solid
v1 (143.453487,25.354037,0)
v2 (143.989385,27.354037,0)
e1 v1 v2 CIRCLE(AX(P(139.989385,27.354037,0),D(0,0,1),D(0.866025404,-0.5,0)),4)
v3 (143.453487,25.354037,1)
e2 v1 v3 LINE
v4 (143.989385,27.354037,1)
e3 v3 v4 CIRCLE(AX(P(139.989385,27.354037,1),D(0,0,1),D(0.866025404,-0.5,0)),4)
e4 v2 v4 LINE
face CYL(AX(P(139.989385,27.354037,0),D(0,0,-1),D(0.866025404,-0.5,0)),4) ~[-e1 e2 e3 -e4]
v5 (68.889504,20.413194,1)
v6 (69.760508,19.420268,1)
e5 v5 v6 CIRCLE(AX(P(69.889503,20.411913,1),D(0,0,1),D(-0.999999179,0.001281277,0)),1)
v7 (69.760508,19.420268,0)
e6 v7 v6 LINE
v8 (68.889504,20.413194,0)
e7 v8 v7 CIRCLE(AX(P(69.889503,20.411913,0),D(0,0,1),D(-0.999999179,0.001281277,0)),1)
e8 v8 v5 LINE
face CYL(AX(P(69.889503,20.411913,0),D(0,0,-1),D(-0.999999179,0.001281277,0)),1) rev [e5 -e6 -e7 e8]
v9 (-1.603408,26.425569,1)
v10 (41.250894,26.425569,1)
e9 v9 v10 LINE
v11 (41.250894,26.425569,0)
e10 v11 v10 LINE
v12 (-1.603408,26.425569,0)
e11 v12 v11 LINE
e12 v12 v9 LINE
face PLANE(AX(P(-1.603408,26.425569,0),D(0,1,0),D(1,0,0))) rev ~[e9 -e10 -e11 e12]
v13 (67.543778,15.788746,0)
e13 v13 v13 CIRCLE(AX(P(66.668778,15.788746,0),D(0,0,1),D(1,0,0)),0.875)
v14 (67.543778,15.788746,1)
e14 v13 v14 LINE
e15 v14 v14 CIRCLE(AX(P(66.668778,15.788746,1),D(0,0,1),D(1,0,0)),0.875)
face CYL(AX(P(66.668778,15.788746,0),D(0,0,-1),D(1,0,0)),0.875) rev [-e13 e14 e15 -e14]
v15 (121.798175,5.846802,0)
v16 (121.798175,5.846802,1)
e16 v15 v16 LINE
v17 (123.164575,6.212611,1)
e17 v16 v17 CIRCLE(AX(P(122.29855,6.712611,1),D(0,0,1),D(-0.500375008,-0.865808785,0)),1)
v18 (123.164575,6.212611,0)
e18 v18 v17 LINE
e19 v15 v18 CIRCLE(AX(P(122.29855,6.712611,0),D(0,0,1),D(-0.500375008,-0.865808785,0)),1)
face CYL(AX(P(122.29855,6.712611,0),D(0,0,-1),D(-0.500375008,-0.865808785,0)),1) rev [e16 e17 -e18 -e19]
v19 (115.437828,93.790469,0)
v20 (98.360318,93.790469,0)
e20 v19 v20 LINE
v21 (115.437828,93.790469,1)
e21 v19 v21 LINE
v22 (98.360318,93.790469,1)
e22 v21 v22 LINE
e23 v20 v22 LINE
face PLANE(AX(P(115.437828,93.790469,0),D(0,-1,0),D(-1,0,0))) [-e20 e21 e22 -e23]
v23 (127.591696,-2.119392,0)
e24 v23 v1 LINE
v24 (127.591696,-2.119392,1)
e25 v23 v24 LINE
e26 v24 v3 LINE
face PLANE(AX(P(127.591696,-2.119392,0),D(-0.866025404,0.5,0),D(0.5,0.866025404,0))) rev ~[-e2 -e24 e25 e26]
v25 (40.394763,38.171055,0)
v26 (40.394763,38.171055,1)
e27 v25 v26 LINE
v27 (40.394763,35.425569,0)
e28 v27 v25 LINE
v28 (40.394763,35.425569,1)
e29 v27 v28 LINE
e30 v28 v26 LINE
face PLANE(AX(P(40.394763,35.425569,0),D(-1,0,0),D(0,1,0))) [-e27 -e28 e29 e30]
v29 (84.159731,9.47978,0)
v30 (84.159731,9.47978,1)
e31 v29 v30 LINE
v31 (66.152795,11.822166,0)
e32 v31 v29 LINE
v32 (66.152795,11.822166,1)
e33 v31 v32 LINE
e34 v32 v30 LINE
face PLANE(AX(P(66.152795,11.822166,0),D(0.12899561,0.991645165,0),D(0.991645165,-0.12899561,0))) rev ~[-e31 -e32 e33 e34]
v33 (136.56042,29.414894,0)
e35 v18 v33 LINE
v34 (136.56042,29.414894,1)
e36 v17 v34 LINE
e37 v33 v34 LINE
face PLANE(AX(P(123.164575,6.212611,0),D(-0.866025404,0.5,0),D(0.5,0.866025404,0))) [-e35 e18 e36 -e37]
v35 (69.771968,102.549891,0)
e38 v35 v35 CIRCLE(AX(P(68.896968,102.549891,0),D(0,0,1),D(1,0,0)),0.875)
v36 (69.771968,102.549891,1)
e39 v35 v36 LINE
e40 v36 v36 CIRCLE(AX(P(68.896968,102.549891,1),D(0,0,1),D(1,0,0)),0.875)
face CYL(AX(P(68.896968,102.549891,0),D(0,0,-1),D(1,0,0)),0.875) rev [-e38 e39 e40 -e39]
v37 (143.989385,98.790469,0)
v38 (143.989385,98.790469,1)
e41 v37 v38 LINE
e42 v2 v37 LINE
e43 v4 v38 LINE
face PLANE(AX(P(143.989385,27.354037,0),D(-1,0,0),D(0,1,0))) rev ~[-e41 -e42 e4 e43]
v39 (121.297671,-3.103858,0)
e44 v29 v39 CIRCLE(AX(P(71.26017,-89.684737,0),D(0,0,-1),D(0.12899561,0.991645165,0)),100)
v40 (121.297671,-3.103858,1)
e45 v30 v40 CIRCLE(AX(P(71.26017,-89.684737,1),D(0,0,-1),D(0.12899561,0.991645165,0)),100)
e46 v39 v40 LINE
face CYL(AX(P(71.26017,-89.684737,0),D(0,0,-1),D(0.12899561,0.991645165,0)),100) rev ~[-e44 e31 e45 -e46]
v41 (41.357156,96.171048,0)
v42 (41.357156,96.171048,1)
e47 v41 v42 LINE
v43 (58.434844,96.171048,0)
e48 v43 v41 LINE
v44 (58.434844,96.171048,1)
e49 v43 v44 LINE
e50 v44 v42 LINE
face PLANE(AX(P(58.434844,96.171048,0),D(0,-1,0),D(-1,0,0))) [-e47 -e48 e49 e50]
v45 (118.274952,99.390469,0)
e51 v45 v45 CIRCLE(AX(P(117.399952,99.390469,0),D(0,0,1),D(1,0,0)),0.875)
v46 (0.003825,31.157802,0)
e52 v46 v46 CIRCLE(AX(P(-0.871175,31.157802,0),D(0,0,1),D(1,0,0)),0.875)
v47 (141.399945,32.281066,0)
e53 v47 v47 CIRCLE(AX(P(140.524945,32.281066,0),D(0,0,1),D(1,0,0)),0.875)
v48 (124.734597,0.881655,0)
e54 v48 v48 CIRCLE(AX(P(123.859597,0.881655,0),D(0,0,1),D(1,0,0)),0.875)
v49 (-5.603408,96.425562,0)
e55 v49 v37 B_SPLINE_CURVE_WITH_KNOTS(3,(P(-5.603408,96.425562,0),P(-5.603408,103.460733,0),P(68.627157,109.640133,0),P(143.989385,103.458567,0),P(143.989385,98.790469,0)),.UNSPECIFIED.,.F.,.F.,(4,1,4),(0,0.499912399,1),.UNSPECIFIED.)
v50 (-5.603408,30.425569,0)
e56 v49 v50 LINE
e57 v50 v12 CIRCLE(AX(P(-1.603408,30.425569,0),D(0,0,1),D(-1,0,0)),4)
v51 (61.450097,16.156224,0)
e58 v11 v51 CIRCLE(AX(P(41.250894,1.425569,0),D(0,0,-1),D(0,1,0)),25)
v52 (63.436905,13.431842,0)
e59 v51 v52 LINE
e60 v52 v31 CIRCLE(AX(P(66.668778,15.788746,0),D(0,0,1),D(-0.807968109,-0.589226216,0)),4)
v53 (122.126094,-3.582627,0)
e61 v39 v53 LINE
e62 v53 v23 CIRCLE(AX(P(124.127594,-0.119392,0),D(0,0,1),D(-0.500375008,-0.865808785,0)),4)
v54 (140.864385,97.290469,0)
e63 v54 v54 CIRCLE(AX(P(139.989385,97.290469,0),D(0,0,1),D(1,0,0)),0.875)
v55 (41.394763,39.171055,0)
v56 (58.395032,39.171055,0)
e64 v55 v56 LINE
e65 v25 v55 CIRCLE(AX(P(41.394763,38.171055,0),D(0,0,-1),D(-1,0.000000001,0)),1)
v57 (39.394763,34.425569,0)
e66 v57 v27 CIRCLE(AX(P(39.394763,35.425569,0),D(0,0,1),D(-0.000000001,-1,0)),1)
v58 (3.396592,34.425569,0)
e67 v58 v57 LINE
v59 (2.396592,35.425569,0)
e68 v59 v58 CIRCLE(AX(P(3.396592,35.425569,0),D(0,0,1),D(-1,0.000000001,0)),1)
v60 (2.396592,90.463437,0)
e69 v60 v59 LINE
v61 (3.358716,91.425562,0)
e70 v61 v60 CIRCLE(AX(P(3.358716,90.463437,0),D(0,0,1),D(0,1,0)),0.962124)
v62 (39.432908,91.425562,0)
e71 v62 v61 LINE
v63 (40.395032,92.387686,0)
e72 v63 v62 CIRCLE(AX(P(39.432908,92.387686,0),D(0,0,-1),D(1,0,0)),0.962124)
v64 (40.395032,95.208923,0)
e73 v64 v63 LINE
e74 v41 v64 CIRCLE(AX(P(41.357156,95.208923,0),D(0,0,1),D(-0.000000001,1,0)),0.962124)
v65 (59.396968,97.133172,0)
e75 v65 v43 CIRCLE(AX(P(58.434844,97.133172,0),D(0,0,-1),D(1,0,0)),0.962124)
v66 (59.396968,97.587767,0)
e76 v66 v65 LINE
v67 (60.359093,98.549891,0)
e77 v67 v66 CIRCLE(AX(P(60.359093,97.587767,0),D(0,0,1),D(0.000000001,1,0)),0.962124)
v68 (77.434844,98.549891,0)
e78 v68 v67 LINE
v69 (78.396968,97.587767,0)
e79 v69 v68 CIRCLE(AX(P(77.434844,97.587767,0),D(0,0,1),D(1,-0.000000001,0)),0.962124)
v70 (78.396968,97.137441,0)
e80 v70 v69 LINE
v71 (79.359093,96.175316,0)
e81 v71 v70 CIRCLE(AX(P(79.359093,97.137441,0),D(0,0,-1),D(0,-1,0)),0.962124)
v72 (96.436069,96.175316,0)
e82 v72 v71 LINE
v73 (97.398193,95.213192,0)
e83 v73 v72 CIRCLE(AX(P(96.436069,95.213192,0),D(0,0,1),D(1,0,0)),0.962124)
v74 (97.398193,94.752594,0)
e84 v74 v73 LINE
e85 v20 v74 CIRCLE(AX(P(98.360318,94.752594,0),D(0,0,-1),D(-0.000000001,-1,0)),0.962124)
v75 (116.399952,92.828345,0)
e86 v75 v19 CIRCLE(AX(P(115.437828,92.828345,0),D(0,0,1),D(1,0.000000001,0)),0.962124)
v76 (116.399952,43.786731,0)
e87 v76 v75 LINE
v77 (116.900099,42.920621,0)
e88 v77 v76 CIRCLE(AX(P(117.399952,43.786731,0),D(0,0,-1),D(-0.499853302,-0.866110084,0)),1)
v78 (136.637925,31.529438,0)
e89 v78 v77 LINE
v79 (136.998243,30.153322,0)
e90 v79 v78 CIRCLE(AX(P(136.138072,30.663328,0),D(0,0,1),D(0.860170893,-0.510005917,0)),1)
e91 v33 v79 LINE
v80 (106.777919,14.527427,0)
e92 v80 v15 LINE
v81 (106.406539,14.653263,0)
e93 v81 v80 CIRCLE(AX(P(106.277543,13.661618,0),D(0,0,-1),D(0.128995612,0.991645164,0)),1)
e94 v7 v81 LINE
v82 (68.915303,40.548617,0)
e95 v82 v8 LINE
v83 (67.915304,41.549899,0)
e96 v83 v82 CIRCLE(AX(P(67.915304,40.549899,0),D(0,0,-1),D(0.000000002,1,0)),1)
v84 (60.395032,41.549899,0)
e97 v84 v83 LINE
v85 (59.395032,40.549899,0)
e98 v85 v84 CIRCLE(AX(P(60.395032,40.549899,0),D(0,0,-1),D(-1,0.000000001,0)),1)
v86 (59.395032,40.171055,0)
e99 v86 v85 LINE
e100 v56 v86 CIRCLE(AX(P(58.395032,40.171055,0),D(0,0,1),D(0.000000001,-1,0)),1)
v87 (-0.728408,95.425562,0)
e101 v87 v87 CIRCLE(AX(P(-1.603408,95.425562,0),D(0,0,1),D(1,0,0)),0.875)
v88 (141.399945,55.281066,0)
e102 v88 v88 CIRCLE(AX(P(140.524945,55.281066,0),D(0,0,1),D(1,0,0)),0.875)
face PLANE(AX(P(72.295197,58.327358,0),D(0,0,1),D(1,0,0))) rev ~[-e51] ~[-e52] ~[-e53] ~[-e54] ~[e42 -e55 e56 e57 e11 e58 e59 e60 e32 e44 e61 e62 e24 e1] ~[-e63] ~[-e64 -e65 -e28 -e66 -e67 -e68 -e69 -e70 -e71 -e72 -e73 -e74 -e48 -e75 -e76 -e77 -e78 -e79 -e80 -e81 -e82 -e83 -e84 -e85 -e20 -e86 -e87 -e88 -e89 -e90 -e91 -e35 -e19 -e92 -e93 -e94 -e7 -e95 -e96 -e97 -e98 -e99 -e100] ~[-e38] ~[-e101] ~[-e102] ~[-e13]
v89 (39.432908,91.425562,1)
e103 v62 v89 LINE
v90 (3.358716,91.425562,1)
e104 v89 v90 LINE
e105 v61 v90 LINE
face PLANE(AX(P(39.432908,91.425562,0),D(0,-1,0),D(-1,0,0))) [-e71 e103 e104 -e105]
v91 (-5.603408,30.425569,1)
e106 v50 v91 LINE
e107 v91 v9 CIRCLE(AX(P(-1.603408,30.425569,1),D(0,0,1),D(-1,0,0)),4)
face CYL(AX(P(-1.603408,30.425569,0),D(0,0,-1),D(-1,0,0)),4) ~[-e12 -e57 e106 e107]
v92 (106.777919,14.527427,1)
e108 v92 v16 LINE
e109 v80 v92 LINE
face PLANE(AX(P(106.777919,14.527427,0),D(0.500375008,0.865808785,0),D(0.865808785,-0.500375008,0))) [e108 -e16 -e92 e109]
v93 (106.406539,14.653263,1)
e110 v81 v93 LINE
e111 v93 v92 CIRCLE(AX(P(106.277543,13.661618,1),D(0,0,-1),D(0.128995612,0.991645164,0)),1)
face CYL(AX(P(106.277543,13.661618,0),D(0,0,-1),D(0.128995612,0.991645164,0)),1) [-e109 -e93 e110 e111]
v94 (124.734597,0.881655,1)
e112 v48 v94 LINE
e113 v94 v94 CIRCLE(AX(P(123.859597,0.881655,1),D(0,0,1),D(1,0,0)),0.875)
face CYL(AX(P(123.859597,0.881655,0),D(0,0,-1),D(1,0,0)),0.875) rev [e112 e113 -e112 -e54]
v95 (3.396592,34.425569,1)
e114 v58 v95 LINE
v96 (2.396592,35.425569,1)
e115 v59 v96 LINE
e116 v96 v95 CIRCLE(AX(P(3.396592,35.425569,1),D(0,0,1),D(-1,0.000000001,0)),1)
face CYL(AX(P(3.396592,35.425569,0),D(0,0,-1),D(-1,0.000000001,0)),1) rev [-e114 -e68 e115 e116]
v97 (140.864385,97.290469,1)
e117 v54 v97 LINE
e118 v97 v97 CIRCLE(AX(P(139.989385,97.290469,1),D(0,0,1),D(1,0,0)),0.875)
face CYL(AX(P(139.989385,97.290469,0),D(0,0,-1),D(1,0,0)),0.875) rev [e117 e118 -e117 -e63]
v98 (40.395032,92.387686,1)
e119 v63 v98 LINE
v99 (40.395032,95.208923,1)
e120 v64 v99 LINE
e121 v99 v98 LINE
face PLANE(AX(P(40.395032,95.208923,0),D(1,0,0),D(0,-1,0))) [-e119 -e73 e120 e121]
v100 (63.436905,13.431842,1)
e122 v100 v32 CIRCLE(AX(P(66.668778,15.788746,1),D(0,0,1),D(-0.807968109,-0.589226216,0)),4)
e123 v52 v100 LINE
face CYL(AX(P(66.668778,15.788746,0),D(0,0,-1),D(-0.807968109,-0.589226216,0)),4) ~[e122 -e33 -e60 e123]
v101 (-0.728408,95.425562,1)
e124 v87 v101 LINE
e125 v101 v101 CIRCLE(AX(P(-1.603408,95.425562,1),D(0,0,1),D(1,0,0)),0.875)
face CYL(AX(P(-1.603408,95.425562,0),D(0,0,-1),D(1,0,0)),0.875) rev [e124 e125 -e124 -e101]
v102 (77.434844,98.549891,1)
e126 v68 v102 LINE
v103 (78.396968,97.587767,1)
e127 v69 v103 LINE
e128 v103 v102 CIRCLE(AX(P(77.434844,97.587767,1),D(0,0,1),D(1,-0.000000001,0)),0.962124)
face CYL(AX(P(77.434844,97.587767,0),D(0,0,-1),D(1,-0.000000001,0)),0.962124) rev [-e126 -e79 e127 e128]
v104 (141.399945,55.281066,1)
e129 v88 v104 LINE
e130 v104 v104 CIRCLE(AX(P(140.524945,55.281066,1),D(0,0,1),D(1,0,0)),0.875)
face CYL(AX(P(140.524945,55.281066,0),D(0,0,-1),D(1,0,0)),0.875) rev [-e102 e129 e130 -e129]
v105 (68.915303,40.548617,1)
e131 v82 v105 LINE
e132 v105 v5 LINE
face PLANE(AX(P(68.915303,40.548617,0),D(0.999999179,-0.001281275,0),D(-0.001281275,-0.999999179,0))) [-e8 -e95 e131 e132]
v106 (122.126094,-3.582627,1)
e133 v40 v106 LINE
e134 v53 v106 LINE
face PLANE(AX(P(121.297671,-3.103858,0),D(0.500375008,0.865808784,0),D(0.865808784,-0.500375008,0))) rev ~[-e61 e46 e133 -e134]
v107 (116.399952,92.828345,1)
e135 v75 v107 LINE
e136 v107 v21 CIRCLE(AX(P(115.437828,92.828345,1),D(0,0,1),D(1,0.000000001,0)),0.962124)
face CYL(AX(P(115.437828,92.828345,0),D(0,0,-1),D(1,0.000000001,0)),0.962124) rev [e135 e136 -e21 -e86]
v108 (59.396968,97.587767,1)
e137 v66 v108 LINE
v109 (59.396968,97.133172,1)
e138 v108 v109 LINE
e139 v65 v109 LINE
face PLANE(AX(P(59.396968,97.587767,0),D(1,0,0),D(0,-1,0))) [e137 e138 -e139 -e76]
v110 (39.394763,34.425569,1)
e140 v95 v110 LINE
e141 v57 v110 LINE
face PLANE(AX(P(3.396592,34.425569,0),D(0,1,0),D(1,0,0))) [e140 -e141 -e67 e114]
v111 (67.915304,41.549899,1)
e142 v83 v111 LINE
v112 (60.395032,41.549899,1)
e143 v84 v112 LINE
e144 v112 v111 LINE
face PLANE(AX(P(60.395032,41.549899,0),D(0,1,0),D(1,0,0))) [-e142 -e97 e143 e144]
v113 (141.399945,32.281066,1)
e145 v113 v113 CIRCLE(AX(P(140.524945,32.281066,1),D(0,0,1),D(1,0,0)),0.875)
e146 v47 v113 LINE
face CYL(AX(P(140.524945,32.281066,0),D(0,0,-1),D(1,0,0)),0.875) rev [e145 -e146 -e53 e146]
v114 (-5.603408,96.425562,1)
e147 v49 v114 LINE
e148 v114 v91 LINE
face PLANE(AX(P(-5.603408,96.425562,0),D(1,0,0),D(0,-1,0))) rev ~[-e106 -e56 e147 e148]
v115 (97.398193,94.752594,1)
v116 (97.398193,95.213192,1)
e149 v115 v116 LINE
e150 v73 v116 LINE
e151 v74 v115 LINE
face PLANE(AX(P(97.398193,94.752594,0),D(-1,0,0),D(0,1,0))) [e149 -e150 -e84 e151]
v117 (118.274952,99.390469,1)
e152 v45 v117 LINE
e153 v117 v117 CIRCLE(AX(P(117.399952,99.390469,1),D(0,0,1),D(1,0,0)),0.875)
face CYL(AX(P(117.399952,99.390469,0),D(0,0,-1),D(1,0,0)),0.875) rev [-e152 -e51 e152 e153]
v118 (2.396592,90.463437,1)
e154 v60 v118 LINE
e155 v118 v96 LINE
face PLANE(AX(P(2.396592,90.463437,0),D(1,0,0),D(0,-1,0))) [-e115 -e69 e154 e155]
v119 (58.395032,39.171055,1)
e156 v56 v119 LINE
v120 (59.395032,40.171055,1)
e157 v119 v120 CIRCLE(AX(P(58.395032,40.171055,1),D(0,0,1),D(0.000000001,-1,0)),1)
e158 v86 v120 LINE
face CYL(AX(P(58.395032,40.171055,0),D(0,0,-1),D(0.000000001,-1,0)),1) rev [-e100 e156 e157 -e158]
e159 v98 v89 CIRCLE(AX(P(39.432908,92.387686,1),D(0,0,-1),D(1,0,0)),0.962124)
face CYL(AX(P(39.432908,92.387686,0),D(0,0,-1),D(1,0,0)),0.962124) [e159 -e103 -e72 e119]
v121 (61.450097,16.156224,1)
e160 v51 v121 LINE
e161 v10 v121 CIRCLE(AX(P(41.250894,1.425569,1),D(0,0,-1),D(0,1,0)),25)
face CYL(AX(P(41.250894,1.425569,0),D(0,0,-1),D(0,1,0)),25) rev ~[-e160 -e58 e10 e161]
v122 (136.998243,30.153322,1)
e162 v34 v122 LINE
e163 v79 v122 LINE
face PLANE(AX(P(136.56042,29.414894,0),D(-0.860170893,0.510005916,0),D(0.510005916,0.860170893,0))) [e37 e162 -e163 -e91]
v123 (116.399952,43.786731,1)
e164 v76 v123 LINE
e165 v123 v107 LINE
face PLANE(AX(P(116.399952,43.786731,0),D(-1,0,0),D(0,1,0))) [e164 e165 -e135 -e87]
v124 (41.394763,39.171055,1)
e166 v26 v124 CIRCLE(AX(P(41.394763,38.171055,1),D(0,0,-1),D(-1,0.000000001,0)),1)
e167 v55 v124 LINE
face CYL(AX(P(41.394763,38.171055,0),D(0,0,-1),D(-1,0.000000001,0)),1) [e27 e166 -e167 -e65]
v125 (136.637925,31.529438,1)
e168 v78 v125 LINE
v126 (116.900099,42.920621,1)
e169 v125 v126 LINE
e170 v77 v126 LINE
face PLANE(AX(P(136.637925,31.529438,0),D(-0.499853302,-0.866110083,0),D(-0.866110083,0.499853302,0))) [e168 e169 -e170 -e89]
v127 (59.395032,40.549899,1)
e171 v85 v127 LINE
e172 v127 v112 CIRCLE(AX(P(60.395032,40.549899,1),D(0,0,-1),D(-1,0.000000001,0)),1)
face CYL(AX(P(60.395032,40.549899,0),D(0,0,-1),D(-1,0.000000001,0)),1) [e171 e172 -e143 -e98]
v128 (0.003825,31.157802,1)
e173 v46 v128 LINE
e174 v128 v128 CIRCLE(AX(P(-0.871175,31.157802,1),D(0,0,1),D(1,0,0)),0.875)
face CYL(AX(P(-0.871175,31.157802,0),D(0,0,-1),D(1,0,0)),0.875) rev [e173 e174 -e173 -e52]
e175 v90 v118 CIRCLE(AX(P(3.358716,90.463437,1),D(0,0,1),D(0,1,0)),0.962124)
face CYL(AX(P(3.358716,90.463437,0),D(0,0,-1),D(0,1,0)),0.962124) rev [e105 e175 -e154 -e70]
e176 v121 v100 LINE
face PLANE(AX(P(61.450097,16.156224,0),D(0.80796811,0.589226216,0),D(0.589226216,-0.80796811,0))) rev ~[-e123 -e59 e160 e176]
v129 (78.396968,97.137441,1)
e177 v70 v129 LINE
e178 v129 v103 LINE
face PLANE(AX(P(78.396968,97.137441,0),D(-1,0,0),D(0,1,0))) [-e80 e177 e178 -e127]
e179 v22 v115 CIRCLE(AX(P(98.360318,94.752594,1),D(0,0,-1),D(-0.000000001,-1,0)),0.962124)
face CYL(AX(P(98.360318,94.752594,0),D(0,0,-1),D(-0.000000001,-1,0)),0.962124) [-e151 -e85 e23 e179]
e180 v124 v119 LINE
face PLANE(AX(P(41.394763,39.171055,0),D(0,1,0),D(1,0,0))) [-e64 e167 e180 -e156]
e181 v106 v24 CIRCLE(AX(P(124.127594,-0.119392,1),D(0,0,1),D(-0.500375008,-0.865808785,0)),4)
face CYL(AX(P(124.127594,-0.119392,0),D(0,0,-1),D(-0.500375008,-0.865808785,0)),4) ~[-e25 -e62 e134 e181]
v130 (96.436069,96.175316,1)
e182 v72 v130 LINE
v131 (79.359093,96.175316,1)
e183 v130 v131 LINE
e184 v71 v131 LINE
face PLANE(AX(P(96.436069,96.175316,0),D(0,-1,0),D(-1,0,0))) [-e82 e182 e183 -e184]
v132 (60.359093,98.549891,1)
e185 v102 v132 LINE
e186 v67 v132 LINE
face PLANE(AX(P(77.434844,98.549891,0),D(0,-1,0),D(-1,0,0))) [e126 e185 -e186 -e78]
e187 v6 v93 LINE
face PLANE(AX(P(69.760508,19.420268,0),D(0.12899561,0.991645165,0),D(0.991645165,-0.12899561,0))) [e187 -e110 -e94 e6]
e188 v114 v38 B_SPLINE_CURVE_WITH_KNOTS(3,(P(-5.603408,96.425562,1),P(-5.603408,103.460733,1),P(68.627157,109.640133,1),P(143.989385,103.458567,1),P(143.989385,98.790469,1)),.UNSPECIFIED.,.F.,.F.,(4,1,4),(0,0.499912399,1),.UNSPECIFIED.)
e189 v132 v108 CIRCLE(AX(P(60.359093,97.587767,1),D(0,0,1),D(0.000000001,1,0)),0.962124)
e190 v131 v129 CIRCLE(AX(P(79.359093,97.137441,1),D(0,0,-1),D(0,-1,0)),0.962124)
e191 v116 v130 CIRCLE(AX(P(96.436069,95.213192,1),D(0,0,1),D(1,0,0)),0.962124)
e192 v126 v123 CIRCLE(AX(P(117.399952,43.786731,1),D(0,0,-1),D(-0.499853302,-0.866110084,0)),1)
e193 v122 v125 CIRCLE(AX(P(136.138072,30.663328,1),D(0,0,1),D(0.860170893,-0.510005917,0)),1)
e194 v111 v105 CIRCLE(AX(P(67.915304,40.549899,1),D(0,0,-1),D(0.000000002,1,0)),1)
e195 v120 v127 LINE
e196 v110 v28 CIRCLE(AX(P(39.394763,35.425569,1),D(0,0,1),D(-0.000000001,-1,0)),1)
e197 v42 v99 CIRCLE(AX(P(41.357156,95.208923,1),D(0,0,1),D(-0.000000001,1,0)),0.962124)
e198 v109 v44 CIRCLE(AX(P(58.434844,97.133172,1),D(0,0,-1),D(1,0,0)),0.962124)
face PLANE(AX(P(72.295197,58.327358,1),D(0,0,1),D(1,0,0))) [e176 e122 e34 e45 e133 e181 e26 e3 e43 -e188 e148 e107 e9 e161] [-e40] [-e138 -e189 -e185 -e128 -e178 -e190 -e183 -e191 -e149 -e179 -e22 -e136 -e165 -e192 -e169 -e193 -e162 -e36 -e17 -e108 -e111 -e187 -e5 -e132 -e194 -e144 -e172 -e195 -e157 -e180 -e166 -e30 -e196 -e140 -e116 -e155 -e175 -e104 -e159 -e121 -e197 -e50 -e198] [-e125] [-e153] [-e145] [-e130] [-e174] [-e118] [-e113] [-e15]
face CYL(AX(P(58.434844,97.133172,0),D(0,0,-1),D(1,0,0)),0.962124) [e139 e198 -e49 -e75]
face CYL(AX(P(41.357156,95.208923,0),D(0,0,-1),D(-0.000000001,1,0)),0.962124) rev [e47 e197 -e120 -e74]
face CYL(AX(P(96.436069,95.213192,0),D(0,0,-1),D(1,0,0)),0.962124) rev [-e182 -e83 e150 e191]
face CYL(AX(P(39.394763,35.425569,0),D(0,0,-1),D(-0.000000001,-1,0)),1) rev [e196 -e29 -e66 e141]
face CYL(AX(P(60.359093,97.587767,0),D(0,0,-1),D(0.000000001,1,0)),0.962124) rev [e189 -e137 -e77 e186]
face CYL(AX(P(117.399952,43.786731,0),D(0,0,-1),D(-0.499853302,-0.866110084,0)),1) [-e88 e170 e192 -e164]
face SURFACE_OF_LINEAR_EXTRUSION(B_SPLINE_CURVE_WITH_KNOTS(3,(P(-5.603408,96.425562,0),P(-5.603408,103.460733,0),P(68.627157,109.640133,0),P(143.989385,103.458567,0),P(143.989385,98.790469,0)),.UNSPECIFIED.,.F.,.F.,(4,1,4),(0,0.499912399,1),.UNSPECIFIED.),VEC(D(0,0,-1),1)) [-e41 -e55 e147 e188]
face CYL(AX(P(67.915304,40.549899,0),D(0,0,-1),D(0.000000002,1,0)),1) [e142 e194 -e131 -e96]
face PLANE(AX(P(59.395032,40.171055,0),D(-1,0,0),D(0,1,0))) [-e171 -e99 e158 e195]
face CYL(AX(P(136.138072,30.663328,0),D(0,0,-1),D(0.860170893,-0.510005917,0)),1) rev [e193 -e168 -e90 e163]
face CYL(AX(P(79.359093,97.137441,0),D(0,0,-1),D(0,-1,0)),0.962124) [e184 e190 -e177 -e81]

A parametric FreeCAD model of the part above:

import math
import FreeCAD as App
import Part
import Sketcher

V = App.Vector
Q = App.Units.Quantity

doc = App.newDocument("Part")
params = doc.addObject("Spreadsheet::Sheet", "Params")
for row, (alias, value) in enumerate([
    ("sketch1_radius", "4 mm"),
    ("sketch1_radius2", "25 mm"),
    ("sketch1_radius3", "4 mm"),
    ("sketch1_radius4", "100 mm"),
    ("sketch1_radius5", "4 mm"),
    ("pad1_length", "1 mm"),
], start=1):
    params.set(f"A{row}", alias)
    params.set(f"B{row}", "=" + value)
    params.setAlias(f"B{row}", alias)

body = doc.addObject("PartDesign::Body", "Body")

# Sketch on XY plane
sketch1 = body.newObject("Sketcher::SketchObject", "Sketch")
sketch1.AttachmentSupport = (doc.getObject("XY_Plane"), [""])
sketch1.MapMode = "FlatFace"
sketch1.addGeometry(Part.LineSegment(V(-5.603408, 96.425562, 0), V(-5.603408, 30.425569, 0)), False)
sketch1.addGeometry(Part.ArcOfCircle(Part.Circle(V(-1.603408, 30.425569, 0), V(0, 0, 1), 4), math.radians(180), math.radians(270)), False)
sketch1.addGeometry(Part.LineSegment(V(-1.603408, 26.425569, 0), V(41.250894, 26.425569, 0)), False)
sketch1.addGeometry(Part.ArcOfCircle(Part.Circle(V(41.250894, 1.425569, 0), V(0, 0, 1), 25), math.radians(36.102117), math.radians(90)), False)
sketch1.addGeometry(Part.LineSegment(V(61.450097, 16.156224, 0), V(63.436905, 13.431842, 0)), False)
sketch1.addGeometry(Part.ArcOfCircle(Part.Circle(V(66.668778, 15.788746, 0), V(0, 0, 1), 4), math.radians(-143.897883), math.radians(-97.411556)), False)
sketch1.addGeometry(Part.LineSegment(V(66.152795, 11.822166, 0), V(84.159731, 9.47978, 0)), False)
sketch1.addGeometry(Part.ArcOfCircle(Part.Circle(V(71.26017, -89.684737, 0), V(0, 0, 1), 100), math.radians(59.975187), math.radians(82.588444)), False)
sketch1.addGeometry(Part.LineSegment(V(121.297671, -3.103858, 0), V(122.126094, -3.582627, 0)), False)
sketch1.addGeometry(Part.ArcOfCircle(Part.Circle(V(124.127594, -0.119392, 0), V(0, 0, 1), 4), math.radians(-120.024813), math.radians(-30)), False)
sketch1.addGeometry(Part.LineSegment(V(127.591696, -2.119392, 0), V(143.453487, 25.354037, 0)), False)
sketch1.addGeometry(Part.ArcOfCircle(Part.Circle(V(139.989385, 27.354037, 0), V(0, 0, 1), 4), math.radians(-30), math.radians(0)), False)
sketch1.addGeometry(Part.LineSegment(V(143.989385, 27.354037, 0), V(143.989385, 98.790469, 0)), False)
sketch1.addGeometry(Part.BSplineCurve([V(-5.603408, 96.425562, 0), V(-5.603408, 103.460733, 0), V(68.627157, 109.640133, 0), V(143.989385, 103.458567, 0), V(143.989385, 98.790469, 0)], [4, 1, 4], [0, 0.499912399, 1], False, 3, [1, 1, 1, 1, 1], False), False)
sketch1.addGeometry(Part.Circle(V(66.668778, 15.788746, 0), V(0, 0, 1), 0.875), False)
sketch1.addGeometry(Part.Circle(V(-0.871175, 31.157802, 0), V(0, 0, 1), 0.875), False)
sketch1.addGeometry(Part.Circle(V(123.859597, 0.881655, 0), V(0, 0, 1), 0.875), False)
sketch1.addGeometry(Part.Circle(V(140.524945, 32.281066, 0), V(0, 0, 1), 0.875), False)
sketch1.addGeometry(Part.Circle(V(-1.603408, 95.425562, 0), V(0, 0, 1), 0.875), False)
sketch1.addGeometry(Part.Circle(V(68.896968, 102.549891, 0), V(0, 0, 1), 0.875), False)
sketch1.addGeometry(Part.LineSegment(V(2.396592, 35.425569, 0), V(2.396592, 90.463437, 0)), False)
sketch1.addGeometry(Part.ArcOfCircle(Part.Circle(V(3.358716, 90.463437, 0), V(0, 0, 1), 0.962124), math.radians(90), math.radians(180)), False)
sketch1.addGeometry(Part.LineSegment(V(3.358716, 91.425562, 0), V(39.432908, 91.425562, 0)), False)
sketch1.addGeometry(Part.ArcOfCircle(Part.Circle(V(39.432908, 92.387686, 0), V(0, 0, 1), 0.962124), math.radians(-90), math.radians(0)), False)
sketch1.addGeometry(Part.LineSegment(V(40.395032, 92.387686, 0), V(40.395032, 95.208923, 0)), False)
sketch1.addGeometry(Part.ArcOfCircle(Part.Circle(V(41.357156, 95.208923, 0), V(0, 0, 1), 0.962124), math.radians(90), math.radians(180)), False)
sketch1.addGeometry(Part.LineSegment(V(41.357156, 96.171048, 0), V(58.434844, 96.171048, 0)), False)
sketch1.addGeometry(Part.ArcOfCircle(Part.Circle(V(58.434844, 97.133172, 0), V(0, 0, 1), 0.962124), math.radians(-90), math.radians(0)), False)
sketch1.addGeometry(Part.LineSegment(V(59.396968, 97.133172, 0), V(59.396968, 97.587767, 0)), False)
sketch1.addGeometry(Part.ArcOfCircle(Part.Circle(V(60.359093, 97.587767, 0), V(0, 0, 1), 0.962124), math.radians(90), math.radians(180)), False)
sketch1.addGeometry(Part.LineSegment(V(60.359093, 98.549891, 0), V(77.434844, 98.549891, 0)), False)
sketch1.addGeometry(Part.ArcOfCircle(Part.Circle(V(77.434844, 97.587767, 0), V(0, 0, 1), 0.962124), math.radians(0), math.radians(90)), False)
sketch1.addGeometry(Part.LineSegment(V(78.396968, 97.587767, 0), V(78.396968, 97.137441, 0)), False)
sketch1.addGeometry(Part.ArcOfCircle(Part.Circle(V(79.359093, 97.137441, 0), V(0, 0, 1), 0.962124), math.radians(180), math.radians(270)), False)
sketch1.addGeometry(Part.LineSegment(V(79.359093, 96.175316, 0), V(96.436069, 96.175316, 0)), False)
sketch1.addGeometry(Part.ArcOfCircle(Part.Circle(V(96.436069, 95.213192, 0), V(0, 0, 1), 0.962124), math.radians(0), math.radians(90)), False)
sketch1.addGeometry(Part.LineSegment(V(97.398193, 95.213192, 0), V(97.398193, 94.752594, 0)), False)
sketch1.addGeometry(Part.ArcOfCircle(Part.Circle(V(98.360318, 94.752594, 0), V(0, 0, 1), 0.962124), math.radians(180), math.radians(270)), False)
sketch1.addGeometry(Part.LineSegment(V(98.360318, 93.790469, 0), V(115.437828, 93.790469, 0)), False)
sketch1.addGeometry(Part.ArcOfCircle(Part.Circle(V(115.437828, 92.828345, 0), V(0, 0, 1), 0.962124), math.radians(0), math.radians(90)), False)
sketch1.addGeometry(Part.LineSegment(V(116.399952, 92.828345, 0), V(116.399952, 43.786731, 0)), False)
sketch1.addGeometry(Part.ArcOfCircle(Part.Circle(V(117.399952, 43.786731, 0), V(0, 0, 1), 1), math.radians(180), math.radians(240.009705)), False)
sketch1.addGeometry(Part.LineSegment(V(116.900099, 42.920621, 0), V(136.637925, 31.529438, 0)), False)
sketch1.addGeometry(Part.ArcOfCircle(Part.Circle(V(136.138072, 30.663328, 0), V(0, 0, 1), 1), math.radians(-30.664224), math.radians(60.009705)), False)
sketch1.addGeometry(Part.LineSegment(V(136.998243, 30.153322, 0), V(136.56042, 29.414894, 0)), False)
sketch1.addGeometry(Part.LineSegment(V(136.56042, 29.414894, 0), V(123.164575, 6.212611, 0)), False)
sketch1.addGeometry(Part.ArcOfCircle(Part.Circle(V(122.29855, 6.712611, 0), V(0, 0, 1), 1), math.radians(-120.024813), math.radians(-30)), False)
sketch1.addGeometry(Part.LineSegment(V(121.798175, 5.846802, 0), V(106.777919, 14.527427, 0)), False)
sketch1.addGeometry(Part.ArcOfCircle(Part.Circle(V(106.277543, 13.661618, 0), V(0, 0, 1), 1), math.radians(59.975187), math.radians(82.588444)), False)
sketch1.addGeometry(Part.LineSegment(V(106.406539, 14.653263, 0), V(69.760508, 19.420268, 0)), False)
sketch1.addGeometry(Part.ArcOfCircle(Part.Circle(V(69.889503, 20.411913, 0), V(0, 0, 1), 1), math.radians(179.926588), math.radians(262.588444)), False)
sketch1.addGeometry(Part.LineSegment(V(68.889504, 20.413194, 0), V(68.915303, 40.548617, 0)), False)
sketch1.addGeometry(Part.ArcOfCircle(Part.Circle(V(67.915304, 40.549899, 0), V(0, 0, 1), 1), math.radians(-0.073412), math.radians(90)), False)
sketch1.addGeometry(Part.LineSegment(V(67.915304, 41.549899, 0), V(60.395032, 41.549899, 0)), False)
sketch1.addGeometry(Part.ArcOfCircle(Part.Circle(V(60.395032, 40.549899, 0), V(0, 0, 1), 1), math.radians(90), math.radians(180)), False)
sketch1.addGeometry(Part.LineSegment(V(59.395032, 40.549899, 0), V(59.395032, 40.171055, 0)), False)
sketch1.addGeometry(Part.ArcOfCircle(Part.Circle(V(58.395032, 40.171055, 0), V(0, 0, 1), 1), math.radians(-90), math.radians(0)), False)
sketch1.addGeometry(Part.LineSegment(V(58.395032, 39.171055, 0), V(41.394763, 39.171055, 0)), False)
sketch1.addGeometry(Part.ArcOfCircle(Part.Circle(V(41.394763, 38.171055, 0), V(0, 0, 1), 1), math.radians(90), math.radians(180)), False)
sketch1.addGeometry(Part.LineSegment(V(40.394763, 38.171055, 0), V(40.394763, 35.425569, 0)), False)
sketch1.addGeometry(Part.ArcOfCircle(Part.Circle(V(39.394763, 35.425569, 0), V(0, 0, 1), 1), math.radians(-90), math.radians(0)), False)
sketch1.addGeometry(Part.LineSegment(V(39.394763, 34.425569, 0), V(3.396592, 34.425569, 0)), False)
sketch1.addGeometry(Part.ArcOfCircle(Part.Circle(V(3.396592, 35.425569, 0), V(0, 0, 1), 1), math.radians(180), math.radians(270)), False)
sketch1.addGeometry(Part.Circle(V(140.524945, 55.281066, 0), V(0, 0, 1), 0.875), False)
sketch1.addGeometry(Part.Circle(V(117.399952, 99.390469, 0), V(0, 0, 1), 0.875), False)
sketch1.addGeometry(Part.Circle(V(139.989385, 97.290469, 0), V(0, 0, 1), 0.875), False)
sketch1.addConstraint(Sketcher.Constraint("Block", 13))
sketch1.addConstraint(Sketcher.Constraint("Coincident", 0, 2, 1, 1))
sketch1.addConstraint(Sketcher.Constraint("Coincident", 1, 2, 2, 1))
sketch1.addConstraint(Sketcher.Constraint("Coincident", 2, 2, 3, 2))
sketch1.addConstraint(Sketcher.Constraint("Coincident", 3, 1, 4, 1))
sketch1.addConstraint(Sketcher.Constraint("Coincident", 4, 2, 5, 1))
sketch1.addConstraint(Sketcher.Constraint("Coincident", 5, 2, 6, 1))
sketch1.addConstraint(Sketcher.Constraint("Coincident", 6, 2, 7, 2))
sketch1.addConstraint(Sketcher.Constraint("Coincident", 7, 1, 8, 1))
sketch1.addConstraint(Sketcher.Constraint("Coincident", 8, 2, 9, 1))
sketch1.addConstraint(Sketcher.Constraint("Coincident", 9, 2, 10, 1))
sketch1.addConstraint(Sketcher.Constraint("Coincident", 10, 2, 11, 1))
sketch1.addConstraint(Sketcher.Constraint("Coincident", 11, 2, 12, 1))
sketch1.addConstraint(Sketcher.Constraint("Coincident", 12, 2, 13, 2))
sketch1.addConstraint(Sketcher.Constraint("Coincident", 13, 1, 0, 1))
sketch1.addConstraint(Sketcher.Constraint("Coincident", 20, 2, 21, 2))
sketch1.addConstraint(Sketcher.Constraint("Coincident", 21, 1, 22, 1))
sketch1.addConstraint(Sketcher.Constraint("Coincident", 22, 2, 23, 1))
sketch1.addConstraint(Sketcher.Constraint("Coincident", 23, 2, 24, 1))
sketch1.addConstraint(Sketcher.Constraint("Coincident", 24, 2, 25, 2))
sketch1.addConstraint(Sketcher.Constraint("Coincident", 25, 1, 26, 1))
sketch1.addConstraint(Sketcher.Constraint("Coincident", 26, 2, 27, 1))
sketch1.addConstraint(Sketcher.Constraint("Coincident", 27, 2, 28, 1))
sketch1.addConstraint(Sketcher.Constraint("Coincident", 28, 2, 29, 2))
sketch1.addConstraint(Sketcher.Constraint("Coincident", 29, 1, 30, 1))
sketch1.addConstraint(Sketcher.Constraint("Coincident", 30, 2, 31, 2))
sketch1.addConstraint(Sketcher.Constraint("Coincident", 31, 1, 32, 1))
sketch1.addConstraint(Sketcher.Constraint("Coincident", 32, 2, 33, 1))
sketch1.addConstraint(Sketcher.Constraint("Coincident", 33, 2, 34, 1))
sketch1.addConstraint(Sketcher.Constraint("Coincident", 34, 2, 35, 2))
sketch1.addConstraint(Sketcher.Constraint("Coincident", 35, 1, 36, 1))
sketch1.addConstraint(Sketcher.Constraint("Coincident", 36, 2, 37, 1))
sketch1.addConstraint(Sketcher.Constraint("Coincident", 37, 2, 38, 1))
sketch1.addConstraint(Sketcher.Constraint("Coincident", 38, 2, 39, 2))
sketch1.addConstraint(Sketcher.Constraint("Coincident", 39, 1, 40, 1))
sketch1.addConstraint(Sketcher.Constraint("Coincident", 40, 2, 41, 1))
sketch1.addConstraint(Sketcher.Constraint("Coincident", 41, 2, 42, 1))
sketch1.addConstraint(Sketcher.Constraint("Coincident", 42, 2, 43, 2))
sketch1.addConstraint(Sketcher.Constraint("Coincident", 43, 1, 44, 1))
sketch1.addConstraint(Sketcher.Constraint("Coincident", 44, 2, 45, 1))
sketch1.addConstraint(Sketcher.Constraint("Coincident", 45, 2, 46, 2))
sketch1.addConstraint(Sketcher.Constraint("Coincident", 46, 1, 47, 1))
sketch1.addConstraint(Sketcher.Constraint("Coincident", 47, 2, 48, 1))
sketch1.addConstraint(Sketcher.Constraint("Coincident", 48, 2, 49, 1))
sketch1.addConstraint(Sketcher.Constraint("Coincident", 49, 2, 50, 2))
sketch1.addConstraint(Sketcher.Constraint("Coincident", 50, 1, 51, 1))
sketch1.addConstraint(Sketcher.Constraint("Coincident", 51, 2, 52, 1))
sketch1.addConstraint(Sketcher.Constraint("Coincident", 52, 2, 53, 1))
sketch1.addConstraint(Sketcher.Constraint("Coincident", 53, 2, 54, 1))
sketch1.addConstraint(Sketcher.Constraint("Coincident", 54, 2, 55, 1))
sketch1.addConstraint(Sketcher.Constraint("Coincident", 55, 2, 56, 2))
sketch1.addConstraint(Sketcher.Constraint("Coincident", 56, 1, 57, 1))
sketch1.addConstraint(Sketcher.Constraint("Coincident", 57, 2, 58, 1))
sketch1.addConstraint(Sketcher.Constraint("Coincident", 58, 2, 59, 1))
sketch1.addConstraint(Sketcher.Constraint("Coincident", 59, 2, 60, 2))
sketch1.addConstraint(Sketcher.Constraint("Coincident", 60, 1, 61, 1))
sketch1.addConstraint(Sketcher.Constraint("Coincident", 61, 2, 62, 2))
sketch1.addConstraint(Sketcher.Constraint("Coincident", 62, 1, 20, 1))
sketch1.addConstraint(Sketcher.Constraint("Vertical", 0))
sketch1.addConstraint(Sketcher.Constraint("Horizontal", 2))
sketch1.addConstraint(Sketcher.Constraint("Vertical", 12))
sketch1.addConstraint(Sketcher.Constraint("Vertical", 20))
sketch1.addConstraint(Sketcher.Constraint("Horizontal", 22))
sketch1.addConstraint(Sketcher.Constraint("Vertical", 24))
sketch1.addConstraint(Sketcher.Constraint("Horizontal", 26))
sketch1.addConstraint(Sketcher.Constraint("Vertical", 28))
sketch1.addConstraint(Sketcher.Constraint("Horizontal", 30))
sketch1.addConstraint(Sketcher.Constraint("Vertical", 32))
sketch1.addConstraint(Sketcher.Constraint("Horizontal", 34))
sketch1.addConstraint(Sketcher.Constraint("Vertical", 36))
sketch1.addConstraint(Sketcher.Constraint("Horizontal", 38))
sketch1.addConstraint(Sketcher.Constraint("Vertical", 40))
sketch1.addConstraint(Sketcher.Constraint("Horizontal", 53))
sketch1.addConstraint(Sketcher.Constraint("Vertical", 55))
sketch1.addConstraint(Sketcher.Constraint("Horizontal", 57))
sketch1.addConstraint(Sketcher.Constraint("Vertical", 59))
sketch1.addConstraint(Sketcher.Constraint("Horizontal", 61))
sketch1.addConstraint(Sketcher.Constraint("Coincident", 14, 3, 5, 3))
sketch1.addConstraint(Sketcher.Constraint("Radius", 1, Q("4 mm")))
sketch1.addConstraint(Sketcher.Constraint("Radius", 3, Q("25 mm")))
sketch1.addConstraint(Sketcher.Constraint("Radius", 5, Q("4 mm")))
sketch1.addConstraint(Sketcher.Constraint("Radius", 7, Q("100 mm")))
sketch1.addConstraint(Sketcher.Constraint("Radius", 9, Q("4 mm")))
sketch1.addConstraint(Sketcher.Constraint("Radius", 11, Q("4 mm")))
sketch1.addConstraint(Sketcher.Constraint("Radius", 41, Q("1 mm")))
sketch1.addConstraint(Sketcher.Constraint("Radius", 43, Q("1 mm")))
sketch1.addConstraint(Sketcher.Constraint("Radius", 46, Q("1 mm")))
sketch1.addConstraint(Sketcher.Constraint("Radius", 48, Q("1 mm")))
sketch1.addConstraint(Sketcher.Constraint("Radius", 50, Q("1 mm")))
sketch1.addConstraint(Sketcher.Constraint("Radius", 52, Q("1 mm")))
sketch1.addConstraint(Sketcher.Constraint("Radius", 54, Q("1 mm")))
sketch1.addConstraint(Sketcher.Constraint("Radius", 56, Q("1 mm")))
sketch1.addConstraint(Sketcher.Constraint("Radius", 58, Q("1 mm")))
sketch1.addConstraint(Sketcher.Constraint("Radius", 60, Q("1 mm")))
sketch1.addConstraint(Sketcher.Constraint("Radius", 62, Q("1 mm")))
sketch1.addConstraint(Sketcher.Constraint("Diameter", 14, Q("1.75 mm")))
sketch1.addConstraint(Sketcher.Constraint("Diameter", 15, Q("1.75 mm")))
sketch1.addConstraint(Sketcher.Constraint("Diameter", 16, Q("1.75 mm")))
sketch1.addConstraint(Sketcher.Constraint("Diameter", 17, Q("1.75 mm")))
sketch1.addConstraint(Sketcher.Constraint("Diameter", 18, Q("1.75 mm")))
sketch1.addConstraint(Sketcher.Constraint("Diameter", 19, Q("1.75 mm")))
sketch1.addConstraint(Sketcher.Constraint("Diameter", 63, Q("1.75 mm")))
sketch1.addConstraint(Sketcher.Constraint("Diameter", 64, Q("1.75 mm")))
sketch1.addConstraint(Sketcher.Constraint("Diameter", 65, Q("1.75 mm")))
sketch1.addConstraint(Sketcher.Constraint("DistanceY", 36, 2, 36, 1, Q("0.460598 mm")))
sketch1.addConstraint(Sketcher.Constraint("Radius", 21, Q("0.962124 mm")))
sketch1.addConstraint(Sketcher.Constraint("Radius", 23, Q("0.962124 mm")))
sketch1.addConstraint(Sketcher.Constraint("Radius", 25, Q("0.962124 mm")))
sketch1.addConstraint(Sketcher.Constraint("Radius", 27, Q("0.962124 mm")))
sketch1.addConstraint(Sketcher.Constraint("Radius", 29, Q("0.962124 mm")))
sketch1.addConstraint(Sketcher.Constraint("Radius", 31, Q("0.962124 mm")))
sketch1.addConstraint(Sketcher.Constraint("Radius", 33, Q("0.962124 mm")))
sketch1.addConstraint(Sketcher.Constraint("Radius", 35, Q("0.962124 mm")))
sketch1.addConstraint(Sketcher.Constraint("Radius", 37, Q("0.962124 mm")))
sketch1.addConstraint(Sketcher.Constraint("Radius", 39, Q("0.962124 mm")))
sketch1.addConstraint(Sketcher.Constraint("DistanceX", 22, 1, 22, 2, Q("36.074192 mm")))
sketch1.addConstraint(Sketcher.Constraint("DistanceX", 30, 1, 30, 2, Q("17.075751 mm")))
sketch1.addConstraint(Sketcher.Constraint("DistanceX", 38, 1, 38, 2, Q("17.07751 mm")))
sketch1.addConstraint(Sketcher.Constraint("DistanceX", 53, 2, 53, 1, Q("7.520272 mm")))
sketch1.addConstraint(Sketcher.Constraint("DistanceX", 57, 2, 57, 1, Q("17.000269 mm")))
sketch1.addConstraint(Sketcher.Constraint("DistanceX", 61, 2, 61, 1, Q("35.998171 mm")))
sketch1.addConstraint(Sketcher.Constraint("DistanceY", 20, 1, 20, 2, Q("55.037868 mm")))
sketch1.addConstraint(Sketcher.Constraint("DistanceY", -1, 1, 15, 3, Q("31.157802 mm")))
sketch1.addConstraint(Sketcher.Constraint("DistanceY", -1, 1, 52, 3, Q("40.549899 mm")))
sketch1.addConstraint(Sketcher.Constraint("DistanceX", -1, 1, 41, 2, Q("116.900099 mm")))
sketch1.addConstraint(Sketcher.Constraint("DistanceY", -1, 1, 54, 2, Q("40.549899 mm")))
sketch1.addConstraint(Sketcher.Constraint("Distance", 6, Q("18.158648 mm")))
sketch1.addConstraint(Sketcher.Constraint("Distance", 8, Q("0.95682 mm")))
sketch1.addConstraint(Sketcher.Constraint("Distance", 42, Q("22.789051 mm")))
sketch1.addConstraint(Sketcher.Constraint("Distance", 45, Q("26.791689 mm")))
sketch1.addConstraint(Sketcher.Constraint("Distance", 51, Q("20.13544 mm")))
sketch1.addConstraint(Sketcher.Constraint("DistanceX", 2, 1, 2, 2, Q("42.854303 mm")))
sketch1.addConstraint(Sketcher.Constraint("DistanceX", 26, 1, 26, 2, Q("17.077688 mm")))
sketch1.addConstraint(Sketcher.Constraint("DistanceX", 34, 1, 34, 2, Q("17.076976 mm")))
sketch1.addConstraint(Sketcher.Constraint("DistanceY", 0, 2, 0, 1, Q("65.999993 mm")))
sketch1.addConstraint(Sketcher.Constraint("DistanceY", 12, 1, 12, 2, Q("71.436433 mm")))
sketch1.addConstraint(Sketcher.Constraint("DistanceY", 24, 1, 24, 2, Q("2.821237 mm")))
sketch1.addConstraint(Sketcher.Constraint("DistanceY", 28, 1, 28, 2, Q("0.454595 mm")))
sketch1.addConstraint(Sketcher.Constraint("DistanceY", 32, 2, 32, 1, Q("0.450326 mm")))
sketch1.addConstraint(Sketcher.Constraint("DistanceY", 40, 2, 40, 1, Q("49.041614 mm")))
sketch1.addConstraint(Sketcher.Constraint("DistanceY", 55, 2, 55, 1, Q("0.378844 mm")))
sketch1.addConstraint(Sketcher.Constraint("DistanceY", 59, 2, 59, 1, Q("2.745486 mm")))
sketch1.addConstraint(Sketcher.Constraint("DistanceY", -1, 1, 1, 3, Q("30.425569 mm")))
sketch1.addConstraint(Sketcher.Constraint("DistanceX", -1, 1, 7, 3, Q("71.26017 mm")))
sketch1.addConstraint(Sketcher.Constraint("DistanceY", 9, 3, -1, 1, Q("0.119392 mm")))
sketch1.addConstraint(Sketcher.Constraint("DistanceX", 18, 3, -1, 1, Q("1.603408 mm")))
sketch1.addConstraint(Sketcher.Constraint("DistanceY", -1, 1, 18, 3, Q("95.425562 mm")))
sketch1.addConstraint(Sketcher.Constraint("DistanceX", -1, 1, 19, 3, Q("68.896968 mm")))
sketch1.addConstraint(Sketcher.Constraint("DistanceY", -1, 1, 19, 3, Q("102.549891 mm")))
sketch1.addConstraint(Sketcher.Constraint("DistanceY", -1, 1, 27, 3, Q("97.133172 mm")))
sketch1.addConstraint(Sketcher.Constraint("DistanceY", -1, 1, 33, 3, Q("97.137441 mm")))
sketch1.addConstraint(Sketcher.Constraint("DistanceX", -1, 1, 35, 3, Q("96.436069 mm")))
sketch1.addConstraint(Sketcher.Constraint("DistanceY", -1, 1, 41, 3, Q("43.786731 mm")))
sketch1.addConstraint(Sketcher.Constraint("DistanceY", -1, 1, 43, 3, Q("30.663328 mm")))
sketch1.addConstraint(Sketcher.Constraint("DistanceX", -1, 1, 46, 3, Q("122.29855 mm")))
sketch1.addConstraint(Sketcher.Constraint("DistanceY", -1, 1, 46, 3, Q("6.712611 mm")))
sketch1.addConstraint(Sketcher.Constraint("DistanceX", -1, 1, 54, 3, Q("60.395032 mm")))
sketch1.addConstraint(Sketcher.Constraint("DistanceY", -1, 1, 60, 3, Q("35.425569 mm")))
sketch1.addConstraint(Sketcher.Constraint("DistanceX", -1, 1, 62, 3, Q("3.396592 mm")))
sketch1.addConstraint(Sketcher.Constraint("DistanceY", -1, 1, 64, 3, Q("99.390469 mm")))
sketch1.addConstraint(Sketcher.Constraint("DistanceY", -1, 1, 65, 3, Q("97.290469 mm")))
sketch1.addConstraint(Sketcher.Constraint("DistanceX", 1, 2, -1, 1, Q("1.603408 mm")))
sketch1.addConstraint(Sketcher.Constraint("DistanceY", -1, 1, 4, 2, Q("13.431842 mm")))
sketch1.addConstraint(Sketcher.Constraint("DistanceX", -1, 1, 6, 2, Q("84.159731 mm")))
sketch1.addConstraint(Sketcher.Constraint("DistanceY", -1, 1, 6, 2, Q("9.47978 mm")))
sketch1.addConstraint(Sketcher.Constraint("DistanceX", -1, 1, 7, 1, Q("121.297671 mm")))
sketch1.addConstraint(Sketcher.Constraint("DistanceY", 9, 2, -1, 1, Q("2.119392 mm")))
sketch1.addConstraint(Sketcher.Constraint("DistanceY", -1, 1, 21, 1, Q("91.425562 mm")))
sketch1.addConstraint(Sketcher.Constraint("DistanceX", -1, 1, 23, 2, Q("40.395032 mm")))
sketch1.addConstraint(Sketcher.Constraint("DistanceX", -1, 1, 27, 2, Q("59.396968 mm")))
sketch1.addConstraint(Sketcher.Constraint("DistanceY", -1, 1, 27, 2, Q("97.133172 mm")))
sketch1.addConstraint(Sketcher.Constraint("DistanceY", -1, 1, 29, 1, Q("98.549891 mm")))
sketch1.addConstraint(Sketcher.Constraint("DistanceX", -1, 1, 31, 1, Q("78.396968 mm")))
sketch1.addConstraint(Sketcher.Constraint("DistanceY", -1, 1, 32, 2, Q("97.137441 mm")))
sketch1.addConstraint(Sketcher.Constraint("DistanceX", -1, 1, 34, 2, Q("96.436069 mm")))
sketch1.addConstraint(Sketcher.Constraint("DistanceY", -1, 1, 37, 2, Q("93.790469 mm")))
sketch1.addConstraint(Sketcher.Constraint("DistanceY", -1, 1, 40, 2, Q("43.786731 mm")))
sketch1.addConstraint(Sketcher.Constraint("DistanceY", -1, 1, 41, 2, Q("42.920621 mm")))
sketch1.addConstraint(Sketcher.Constraint("DistanceY", -1, 1, 42, 2, Q("31.529438 mm")))
sketch1.addConstraint(Sketcher.Constraint("DistanceX", -1, 1, 44, 2, Q("136.56042 mm")))
sketch1.addConstraint(Sketcher.Constraint("DistanceY", -1, 1, 45, 2, Q("6.212611 mm")))
sketch1.addConstraint(Sketcher.Constraint("DistanceX", -1, 1, 47, 2, Q("106.777919 mm")))
sketch1.addConstraint(Sketcher.Constraint("DistanceX", -1, 1, 48, 2, Q("106.406539 mm")))
sketch1.addConstraint(Sketcher.Constraint("DistanceX", -1, 1, 53, 2, Q("60.395032 mm")))
sketch1.addConstraint(Sketcher.Constraint("DistanceX", -1, 1, 56, 1, Q("58.395032 mm")))
sketch1.addConstraint(Sketcher.Constraint("DistanceY", -1, 1, 59, 2, Q("35.425569 mm")))
sketch1.addConstraint(Sketcher.Constraint("DistanceX", -1, 1, 61, 2, Q("3.396592 mm")))
sketch1.addConstraint(Sketcher.Constraint("DistanceY", -1, 1, 62, 1, Q("35.425569 mm")))
sketch1.addConstraint(Sketcher.Constraint("Distance", 4, Q("3.371894 mm")))
sketch1.addConstraint(Sketcher.Constraint("Distance", 10, Q("31.723583 mm")))
sketch1.addConstraint(Sketcher.Constraint("Distance", 44, Q("0.858467 mm")))
sketch1.addConstraint(Sketcher.Constraint("Distance", 47, Q("17.348237 mm")))
sketch1.addConstraint(Sketcher.Constraint("Distance", 49, Q("36.954783 mm")))
sketch1.addConstraint(Sketcher.Constraint("DistanceX", -1, 1, 3, 3, Q("41.250894 mm")))
sketch1.addConstraint(Sketcher.Constraint("DistanceX", -1, 1, 5, 3, Q("66.668778 mm")))
sketch1.addConstraint(Sketcher.Constraint("DistanceY", -1, 1, 5, 3, Q("15.788746 mm")))
sketch1.addConstraint(Sketcher.Constraint("DistanceX", -1, 1, 9, 3, Q("124.127594 mm")))
sketch1.addConstraint(Sketcher.Constraint("DistanceY", -1, 1, 11, 3, Q("27.354037 mm")))
sketch1.addConstraint(Sketcher.Constraint("DistanceX", 15, 3, -1, 1, Q("0.871175 mm")))
sketch1.addConstraint(Sketcher.Constraint("DistanceX", -1, 1, 16, 3, Q("123.859597 mm")))
sketch1.addConstraint(Sketcher.Constraint("DistanceY", -1, 1, 16, 3, Q("0.881655 mm")))
sketch1.addConstraint(Sketcher.Constraint("DistanceX", -1, 1, 17, 3, Q("140.524945 mm")))
sketch1.addConstraint(Sketcher.Constraint("DistanceY", -1, 1, 17, 3, Q("32.281066 mm")))
sketch1.addConstraint(Sketcher.Constraint("DistanceX", -1, 1, 48, 3, Q("106.277543 mm")))
sketch1.addConstraint(Sketcher.Constraint("DistanceY", -1, 1, 48, 3, Q("13.661618 mm")))
sketch1.addConstraint(Sketcher.Constraint("DistanceX", -1, 1, 50, 3, Q("69.889503 mm")))
sketch1.addConstraint(Sketcher.Constraint("DistanceY", -1, 1, 50, 3, Q("20.411913 mm")))
sketch1.addConstraint(Sketcher.Constraint("DistanceX", -1, 1, 52, 3, Q("67.915304 mm")))
sketch1.addConstraint(Sketcher.Constraint("DistanceY", -1, 1, 56, 3, Q("40.171055 mm")))
sketch1.addConstraint(Sketcher.Constraint("DistanceX", -1, 1, 58, 3, Q("41.394763 mm")))
sketch1.addConstraint(Sketcher.Constraint("DistanceX", -1, 1, 63, 3, Q("140.524945 mm")))
sketch1.addConstraint(Sketcher.Constraint("DistanceY", -1, 1, 63, 3, Q("55.281066 mm")))
sketch1.addConstraint(Sketcher.Constraint("DistanceX", -1, 1, 64, 3, Q("117.399952 mm")))
sketch1.addConstraint(Sketcher.Constraint("DistanceX", -1, 1, 65, 3, Q("139.989385 mm")))
sketch1.addConstraint(Sketcher.Constraint("DistanceX", -1, 1, 21, 1, Q("3.358716 mm")))
sketch1.addConstraint(Sketcher.Constraint("DistanceY", -1, 1, 23, 2, Q("92.387686 mm")))
sketch1.addConstraint(Sketcher.Constraint("DistanceX", -1, 1, 25, 1, Q("41.357156 mm")))
sketch1.addConstraint(Sketcher.Constraint("DistanceX", -1, 1, 29, 1, Q("60.359093 mm")))
sketch1.addConstraint(Sketcher.Constraint("DistanceY", -1, 1, 35, 1, Q("95.213192 mm")))
sketch1.addConstraint(Sketcher.Constraint("DistanceX", -1, 1, 37, 2, Q("98.360318 mm")))
sketch1.addConstraint(Sketcher.Constraint("DistanceY", -1, 1, 50, 1, Q("20.413194 mm")))
sketch1.setExpression("Constraints[78]", "Params.sketch1_radius")
sketch1.setExpression("Constraints[79]", "Params.sketch1_radius2")
sketch1.setExpression("Constraints[80]", "Params.sketch1_radius3")
sketch1.setExpression("Constraints[81]", "Params.sketch1_radius4")
sketch1.setExpression("Constraints[82]", "Params.sketch1_radius5")
pad1 = body.newObject("PartDesign::Pad", "Pad")
pad1.Profile = sketch1
pad1.setExpression("Length", "Params.pad1_length")

doc.recompute()
